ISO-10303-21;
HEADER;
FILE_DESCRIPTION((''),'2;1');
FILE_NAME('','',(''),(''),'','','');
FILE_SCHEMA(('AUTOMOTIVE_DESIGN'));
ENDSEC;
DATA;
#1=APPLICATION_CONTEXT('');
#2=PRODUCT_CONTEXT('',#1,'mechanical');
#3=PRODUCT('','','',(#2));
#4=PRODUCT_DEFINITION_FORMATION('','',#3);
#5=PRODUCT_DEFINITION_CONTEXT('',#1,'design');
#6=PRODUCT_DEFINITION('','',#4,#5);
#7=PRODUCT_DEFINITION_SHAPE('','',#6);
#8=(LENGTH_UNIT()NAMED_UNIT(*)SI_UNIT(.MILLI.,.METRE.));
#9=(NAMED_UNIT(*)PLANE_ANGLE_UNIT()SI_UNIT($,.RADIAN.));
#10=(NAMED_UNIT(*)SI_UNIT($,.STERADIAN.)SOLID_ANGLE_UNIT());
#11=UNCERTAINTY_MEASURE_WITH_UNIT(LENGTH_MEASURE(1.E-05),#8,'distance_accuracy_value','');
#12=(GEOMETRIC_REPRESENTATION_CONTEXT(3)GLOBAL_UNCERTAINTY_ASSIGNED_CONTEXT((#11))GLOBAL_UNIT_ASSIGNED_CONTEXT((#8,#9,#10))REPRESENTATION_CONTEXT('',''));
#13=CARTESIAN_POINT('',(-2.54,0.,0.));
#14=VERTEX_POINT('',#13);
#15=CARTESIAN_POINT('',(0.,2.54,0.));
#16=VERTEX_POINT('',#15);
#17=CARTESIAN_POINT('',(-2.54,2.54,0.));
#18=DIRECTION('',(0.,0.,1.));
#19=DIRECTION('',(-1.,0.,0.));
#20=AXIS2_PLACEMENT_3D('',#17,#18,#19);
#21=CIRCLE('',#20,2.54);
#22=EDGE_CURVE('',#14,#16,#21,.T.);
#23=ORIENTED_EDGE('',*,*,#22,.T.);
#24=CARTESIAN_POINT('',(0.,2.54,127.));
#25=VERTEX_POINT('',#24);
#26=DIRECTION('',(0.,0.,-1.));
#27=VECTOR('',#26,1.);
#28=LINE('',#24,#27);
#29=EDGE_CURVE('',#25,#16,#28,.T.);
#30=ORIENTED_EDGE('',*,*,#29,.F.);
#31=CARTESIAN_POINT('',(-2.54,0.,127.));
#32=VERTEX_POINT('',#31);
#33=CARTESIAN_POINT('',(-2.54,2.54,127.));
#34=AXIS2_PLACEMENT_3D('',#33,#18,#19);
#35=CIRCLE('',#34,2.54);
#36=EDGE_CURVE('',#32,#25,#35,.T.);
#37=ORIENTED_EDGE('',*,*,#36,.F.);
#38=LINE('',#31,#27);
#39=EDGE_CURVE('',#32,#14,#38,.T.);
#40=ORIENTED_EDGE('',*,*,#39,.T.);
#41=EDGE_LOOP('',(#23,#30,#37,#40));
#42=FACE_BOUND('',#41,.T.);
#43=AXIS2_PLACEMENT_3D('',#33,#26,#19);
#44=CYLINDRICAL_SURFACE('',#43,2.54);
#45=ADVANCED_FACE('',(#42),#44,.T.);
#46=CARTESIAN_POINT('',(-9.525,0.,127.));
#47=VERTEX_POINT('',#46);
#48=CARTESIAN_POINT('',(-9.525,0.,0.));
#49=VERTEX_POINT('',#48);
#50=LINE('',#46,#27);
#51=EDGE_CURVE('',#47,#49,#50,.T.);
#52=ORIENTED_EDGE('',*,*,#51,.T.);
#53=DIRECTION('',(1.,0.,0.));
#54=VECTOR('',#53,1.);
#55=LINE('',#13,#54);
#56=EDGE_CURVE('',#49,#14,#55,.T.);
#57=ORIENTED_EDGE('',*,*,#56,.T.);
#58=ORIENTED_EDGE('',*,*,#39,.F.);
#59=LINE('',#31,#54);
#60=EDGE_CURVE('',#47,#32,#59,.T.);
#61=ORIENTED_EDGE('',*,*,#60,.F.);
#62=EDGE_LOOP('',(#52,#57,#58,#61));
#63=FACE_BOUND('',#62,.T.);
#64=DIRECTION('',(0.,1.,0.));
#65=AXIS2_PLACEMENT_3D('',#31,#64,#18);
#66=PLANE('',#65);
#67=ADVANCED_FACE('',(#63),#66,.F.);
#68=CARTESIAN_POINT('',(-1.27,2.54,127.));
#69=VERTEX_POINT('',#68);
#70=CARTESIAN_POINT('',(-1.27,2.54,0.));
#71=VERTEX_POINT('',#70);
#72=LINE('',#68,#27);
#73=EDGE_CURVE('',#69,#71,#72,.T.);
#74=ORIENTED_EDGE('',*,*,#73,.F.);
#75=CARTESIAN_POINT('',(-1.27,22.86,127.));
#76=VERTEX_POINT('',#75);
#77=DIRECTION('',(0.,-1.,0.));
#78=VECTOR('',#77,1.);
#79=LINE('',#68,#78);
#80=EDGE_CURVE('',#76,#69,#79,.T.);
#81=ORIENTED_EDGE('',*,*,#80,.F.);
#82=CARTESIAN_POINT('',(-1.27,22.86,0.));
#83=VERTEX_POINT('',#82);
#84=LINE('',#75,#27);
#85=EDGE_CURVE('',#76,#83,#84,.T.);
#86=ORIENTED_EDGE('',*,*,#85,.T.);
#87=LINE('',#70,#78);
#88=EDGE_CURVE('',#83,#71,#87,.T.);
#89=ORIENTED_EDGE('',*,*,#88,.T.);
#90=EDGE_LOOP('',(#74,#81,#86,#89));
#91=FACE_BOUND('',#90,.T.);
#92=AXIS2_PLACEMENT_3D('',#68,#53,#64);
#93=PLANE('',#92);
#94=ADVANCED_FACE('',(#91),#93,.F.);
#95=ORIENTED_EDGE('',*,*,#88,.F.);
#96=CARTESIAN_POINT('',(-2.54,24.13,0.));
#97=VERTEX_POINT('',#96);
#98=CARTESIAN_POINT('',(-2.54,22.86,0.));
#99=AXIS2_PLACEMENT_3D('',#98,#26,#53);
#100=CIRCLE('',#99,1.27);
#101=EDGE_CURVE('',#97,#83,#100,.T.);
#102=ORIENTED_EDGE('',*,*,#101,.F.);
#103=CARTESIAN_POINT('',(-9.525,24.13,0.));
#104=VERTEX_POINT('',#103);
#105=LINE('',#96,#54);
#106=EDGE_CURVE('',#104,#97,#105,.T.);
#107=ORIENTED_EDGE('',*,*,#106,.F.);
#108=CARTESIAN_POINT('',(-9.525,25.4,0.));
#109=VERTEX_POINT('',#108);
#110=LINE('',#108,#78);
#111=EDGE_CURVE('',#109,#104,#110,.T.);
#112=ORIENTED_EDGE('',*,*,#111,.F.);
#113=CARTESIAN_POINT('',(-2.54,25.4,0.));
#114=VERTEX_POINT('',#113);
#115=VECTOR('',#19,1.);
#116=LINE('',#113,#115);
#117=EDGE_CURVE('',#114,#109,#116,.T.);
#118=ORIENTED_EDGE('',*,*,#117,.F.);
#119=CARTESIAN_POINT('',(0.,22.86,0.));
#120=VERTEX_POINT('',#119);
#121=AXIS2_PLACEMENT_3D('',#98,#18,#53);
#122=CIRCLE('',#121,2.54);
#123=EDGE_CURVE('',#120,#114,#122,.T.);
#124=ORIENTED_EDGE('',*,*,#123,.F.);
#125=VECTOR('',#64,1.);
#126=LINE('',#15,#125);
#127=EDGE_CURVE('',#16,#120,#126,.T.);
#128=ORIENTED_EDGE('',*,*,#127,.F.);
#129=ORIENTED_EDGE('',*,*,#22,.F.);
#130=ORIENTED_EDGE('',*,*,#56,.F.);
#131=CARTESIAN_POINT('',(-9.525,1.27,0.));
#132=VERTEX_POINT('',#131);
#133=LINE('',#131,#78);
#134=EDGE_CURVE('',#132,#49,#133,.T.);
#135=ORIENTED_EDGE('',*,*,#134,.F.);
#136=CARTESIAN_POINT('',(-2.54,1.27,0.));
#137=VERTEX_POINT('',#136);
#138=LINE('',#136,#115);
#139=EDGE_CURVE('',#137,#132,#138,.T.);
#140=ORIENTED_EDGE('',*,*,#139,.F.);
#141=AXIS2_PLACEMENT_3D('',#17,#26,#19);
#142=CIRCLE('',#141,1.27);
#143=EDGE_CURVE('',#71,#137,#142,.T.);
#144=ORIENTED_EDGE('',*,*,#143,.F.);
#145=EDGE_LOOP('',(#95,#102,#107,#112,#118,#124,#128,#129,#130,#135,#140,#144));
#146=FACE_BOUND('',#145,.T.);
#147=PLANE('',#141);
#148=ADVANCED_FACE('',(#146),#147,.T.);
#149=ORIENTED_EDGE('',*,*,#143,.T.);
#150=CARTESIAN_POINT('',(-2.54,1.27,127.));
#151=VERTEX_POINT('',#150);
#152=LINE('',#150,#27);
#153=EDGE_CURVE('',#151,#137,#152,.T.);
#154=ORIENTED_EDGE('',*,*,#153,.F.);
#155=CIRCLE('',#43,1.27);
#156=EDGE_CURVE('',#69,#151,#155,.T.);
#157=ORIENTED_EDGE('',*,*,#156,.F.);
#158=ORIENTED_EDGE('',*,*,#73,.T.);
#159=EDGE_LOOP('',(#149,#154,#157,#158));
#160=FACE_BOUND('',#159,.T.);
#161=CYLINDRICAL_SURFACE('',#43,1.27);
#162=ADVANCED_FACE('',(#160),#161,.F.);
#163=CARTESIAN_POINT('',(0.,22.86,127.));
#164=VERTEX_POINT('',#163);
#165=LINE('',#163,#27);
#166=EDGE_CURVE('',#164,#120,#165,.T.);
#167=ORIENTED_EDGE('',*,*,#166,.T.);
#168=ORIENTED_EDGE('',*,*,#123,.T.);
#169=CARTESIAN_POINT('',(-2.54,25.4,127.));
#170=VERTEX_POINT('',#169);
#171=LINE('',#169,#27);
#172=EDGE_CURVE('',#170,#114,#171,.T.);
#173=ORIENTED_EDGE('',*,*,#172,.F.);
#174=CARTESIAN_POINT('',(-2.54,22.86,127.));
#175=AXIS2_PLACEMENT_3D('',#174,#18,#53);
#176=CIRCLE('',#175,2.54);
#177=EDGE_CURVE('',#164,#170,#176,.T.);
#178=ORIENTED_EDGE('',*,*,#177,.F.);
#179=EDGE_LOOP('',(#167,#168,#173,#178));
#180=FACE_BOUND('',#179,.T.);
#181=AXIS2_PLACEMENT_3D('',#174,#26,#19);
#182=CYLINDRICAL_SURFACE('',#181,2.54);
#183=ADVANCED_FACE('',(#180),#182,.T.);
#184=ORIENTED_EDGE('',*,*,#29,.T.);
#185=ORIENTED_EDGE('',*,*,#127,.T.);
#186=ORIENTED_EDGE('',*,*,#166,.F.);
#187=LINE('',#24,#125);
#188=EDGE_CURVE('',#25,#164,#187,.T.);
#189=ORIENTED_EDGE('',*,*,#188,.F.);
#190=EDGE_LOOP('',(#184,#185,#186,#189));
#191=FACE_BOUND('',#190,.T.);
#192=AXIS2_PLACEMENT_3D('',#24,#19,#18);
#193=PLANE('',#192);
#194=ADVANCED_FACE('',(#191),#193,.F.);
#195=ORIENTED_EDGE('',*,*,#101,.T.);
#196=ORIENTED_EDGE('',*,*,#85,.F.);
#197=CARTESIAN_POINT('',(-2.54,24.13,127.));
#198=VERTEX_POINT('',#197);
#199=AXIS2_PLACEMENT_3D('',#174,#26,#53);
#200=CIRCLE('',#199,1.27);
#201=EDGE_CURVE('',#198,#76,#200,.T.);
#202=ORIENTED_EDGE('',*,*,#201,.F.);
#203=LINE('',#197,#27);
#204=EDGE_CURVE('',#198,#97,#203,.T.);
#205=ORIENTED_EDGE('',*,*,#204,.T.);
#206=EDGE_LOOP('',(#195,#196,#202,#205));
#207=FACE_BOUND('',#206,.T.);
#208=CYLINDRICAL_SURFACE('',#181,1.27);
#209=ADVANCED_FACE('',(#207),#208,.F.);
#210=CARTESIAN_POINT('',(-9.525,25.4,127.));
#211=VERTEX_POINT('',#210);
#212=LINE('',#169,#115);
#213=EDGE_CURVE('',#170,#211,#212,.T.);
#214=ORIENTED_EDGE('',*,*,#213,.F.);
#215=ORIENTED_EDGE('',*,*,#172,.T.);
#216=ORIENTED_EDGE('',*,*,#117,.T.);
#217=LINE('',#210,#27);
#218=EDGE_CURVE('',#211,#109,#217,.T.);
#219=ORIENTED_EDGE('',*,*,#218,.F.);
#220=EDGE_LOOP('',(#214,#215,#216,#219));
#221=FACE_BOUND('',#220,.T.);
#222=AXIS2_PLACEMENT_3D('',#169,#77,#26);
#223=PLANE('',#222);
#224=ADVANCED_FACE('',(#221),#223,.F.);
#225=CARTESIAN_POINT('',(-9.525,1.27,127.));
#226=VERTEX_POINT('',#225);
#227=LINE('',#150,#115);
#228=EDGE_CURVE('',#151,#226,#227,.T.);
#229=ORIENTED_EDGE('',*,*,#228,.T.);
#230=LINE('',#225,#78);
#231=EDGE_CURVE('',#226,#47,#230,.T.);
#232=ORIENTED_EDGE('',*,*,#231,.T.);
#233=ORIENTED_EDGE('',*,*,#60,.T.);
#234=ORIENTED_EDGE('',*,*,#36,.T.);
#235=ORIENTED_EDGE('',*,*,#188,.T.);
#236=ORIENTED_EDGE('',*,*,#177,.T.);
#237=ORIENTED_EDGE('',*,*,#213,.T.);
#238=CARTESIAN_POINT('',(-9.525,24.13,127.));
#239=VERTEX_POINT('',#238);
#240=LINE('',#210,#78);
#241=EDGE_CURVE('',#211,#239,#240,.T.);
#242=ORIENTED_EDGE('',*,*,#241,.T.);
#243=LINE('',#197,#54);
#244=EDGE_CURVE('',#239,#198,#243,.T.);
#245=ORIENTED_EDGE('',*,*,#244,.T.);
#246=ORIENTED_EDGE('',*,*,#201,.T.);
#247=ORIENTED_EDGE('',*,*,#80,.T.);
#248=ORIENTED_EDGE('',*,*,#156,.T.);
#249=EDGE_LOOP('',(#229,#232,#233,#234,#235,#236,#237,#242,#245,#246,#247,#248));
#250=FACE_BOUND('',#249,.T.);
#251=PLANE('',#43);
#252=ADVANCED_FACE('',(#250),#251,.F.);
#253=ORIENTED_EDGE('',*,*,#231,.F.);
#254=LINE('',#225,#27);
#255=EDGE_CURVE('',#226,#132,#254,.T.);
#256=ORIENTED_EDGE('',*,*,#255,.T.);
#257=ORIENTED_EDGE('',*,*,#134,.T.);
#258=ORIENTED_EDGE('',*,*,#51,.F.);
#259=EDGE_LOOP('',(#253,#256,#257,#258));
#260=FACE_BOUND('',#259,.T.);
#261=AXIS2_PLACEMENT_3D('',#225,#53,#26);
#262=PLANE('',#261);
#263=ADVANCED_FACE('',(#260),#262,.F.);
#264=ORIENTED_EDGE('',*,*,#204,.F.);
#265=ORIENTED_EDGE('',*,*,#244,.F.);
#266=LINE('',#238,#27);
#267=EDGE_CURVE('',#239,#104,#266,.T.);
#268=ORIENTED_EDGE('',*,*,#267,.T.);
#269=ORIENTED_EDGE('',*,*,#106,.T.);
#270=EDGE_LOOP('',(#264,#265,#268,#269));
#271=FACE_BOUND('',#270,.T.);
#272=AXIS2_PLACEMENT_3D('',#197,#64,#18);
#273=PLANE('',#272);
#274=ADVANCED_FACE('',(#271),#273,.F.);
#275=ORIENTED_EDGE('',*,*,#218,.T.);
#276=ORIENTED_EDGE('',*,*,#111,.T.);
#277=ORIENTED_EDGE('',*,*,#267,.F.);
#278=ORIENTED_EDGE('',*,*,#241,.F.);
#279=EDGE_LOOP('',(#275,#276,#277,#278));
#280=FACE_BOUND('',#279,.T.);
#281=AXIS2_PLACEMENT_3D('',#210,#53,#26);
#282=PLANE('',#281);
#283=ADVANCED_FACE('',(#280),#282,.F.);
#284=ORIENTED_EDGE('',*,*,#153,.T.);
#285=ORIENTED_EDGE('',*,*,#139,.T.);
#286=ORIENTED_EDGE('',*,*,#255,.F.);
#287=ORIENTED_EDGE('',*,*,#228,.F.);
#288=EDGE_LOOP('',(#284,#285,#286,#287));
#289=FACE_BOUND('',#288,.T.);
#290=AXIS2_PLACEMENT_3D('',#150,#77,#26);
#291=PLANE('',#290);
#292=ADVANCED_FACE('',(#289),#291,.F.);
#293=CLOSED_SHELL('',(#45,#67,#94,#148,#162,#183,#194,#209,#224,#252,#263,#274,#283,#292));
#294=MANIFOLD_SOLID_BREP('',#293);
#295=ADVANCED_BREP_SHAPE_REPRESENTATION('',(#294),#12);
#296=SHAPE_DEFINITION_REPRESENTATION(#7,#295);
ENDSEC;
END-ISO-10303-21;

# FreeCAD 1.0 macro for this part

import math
import FreeCAD as App
import Part
import Sketcher
from FreeCAD import Vector
Q = App.Units.Quantity

doc = App.newDocument("Part")
body = doc.addObject("PartDesign::Body", "Body")

sketch1 = doc.addObject("Sketcher::SketchObject", "Sketch")
body.addObject(sketch1)
sketch1.AttachmentSupport = (doc.XY_Plane, [""])
sketch1.MapMode = "FlatFace"
sketch1.addGeometry([
    Part.LineSegment(Vector(0, 2.5, 0), Vector(0, 22.9, 0)),
    Part.ArcOfCircle(Part.Circle(Vector(-2.5, 22.9, 0), Vector(0, 0, 1), 2.5), math.radians(0), math.radians(90)),
    Part.LineSegment(Vector(-2.5, 25.4, 0), Vector(-9.5, 25.4, 0)),
    Part.LineSegment(Vector(-9.5, 25.4, 0), Vector(-9.5, 24.1, 0)),
    Part.LineSegment(Vector(-9.5, 24.1, 0), Vector(-2.5, 24.1, 0)),
    Part.ArcOfCircle(Part.Circle(Vector(-2.5, 22.9, 0), Vector(0, 0, 1), 1.3), math.radians(0), math.radians(90)),
    Part.LineSegment(Vector(-1.3, 22.9, 0), Vector(-1.3, 2.5, 0)),
    Part.ArcOfCircle(Part.Circle(Vector(-2.5, 2.5, 0), Vector(0, 0, 1), 1.3), math.radians(-90), math.radians(0)),
    Part.LineSegment(Vector(-2.5, 1.3, 0), Vector(-9.5, 1.3, 0)),
    Part.LineSegment(Vector(-9.5, 1.3, 0), Vector(-9.5, 0, 0)),
    Part.LineSegment(Vector(-9.5, 0, 0), Vector(-2.5, 0, 0)),
    Part.ArcOfCircle(Part.Circle(Vector(-2.5, 2.5, 0), Vector(0, 0, 1), 2.5), math.radians(-90), math.radians(0)),
], False)
sketch1.addConstraint([
    Sketcher.Constraint("Tangent", 0, 2, 1, 1),
    Sketcher.Constraint("Tangent", 1, 2, 2, 1),
    Sketcher.Constraint("Coincident", 2, 2, 3, 1),
    Sketcher.Constraint("Coincident", 3, 2, 4, 1),
    Sketcher.Constraint("Tangent", 4, 2, 5, 2),
    Sketcher.Constraint("Tangent", 5, 1, 6, 1),
    Sketcher.Constraint("Tangent", 6, 2, 7, 2),
    Sketcher.Constraint("Tangent", 7, 1, 8, 1),
    Sketcher.Constraint("Coincident", 8, 2, 9, 1),
    Sketcher.Constraint("Coincident", 9, 2, 10, 1),
    Sketcher.Constraint("Tangent", 10, 2, 11, 1),
    Sketcher.Constraint("Tangent", 11, 2, 0, 1),
    Sketcher.Constraint("Vertical", 0),
    Sketcher.Constraint("Horizontal", 2),
    Sketcher.Constraint("Vertical", 3),
    Sketcher.Constraint("Horizontal", 4),
    Sketcher.Constraint("Vertical", 6),
    Sketcher.Constraint("Horizontal", 8),
    Sketcher.Constraint("Vertical", 9),
    Sketcher.Constraint("Horizontal", 10),
    Sketcher.Constraint("Coincident", 5, 3, 1, 3),
    Sketcher.Constraint("Coincident", 11, 3, 7, 3),
    Sketcher.Constraint("Equal", 5, 7),
    Sketcher.Constraint("PointOnObject", 0, 2, -2),
    Sketcher.Constraint("PointOnObject", 9, 2, -1),
    Sketcher.Constraint("Vertical", 3, 2, 8, 2),
    Sketcher.Constraint("Radius", 1, Q("0.1 in")),
    Sketcher.Constraint("Radius", 5, Q("0.05 in")),
    Sketcher.Constraint("DistanceY", 0, 1, 0, 2, Q("0.8 in")),
    Sketcher.Constraint("DistanceX", 2, 2, 2, 1, Q("0.275 in")),
])
pad1 = doc.addObject("PartDesign::Pad", "Pad")
body.addObject(pad1)
pad1.Profile = sketch1
pad1.Length = Q("5 in")

doc.recompute()
